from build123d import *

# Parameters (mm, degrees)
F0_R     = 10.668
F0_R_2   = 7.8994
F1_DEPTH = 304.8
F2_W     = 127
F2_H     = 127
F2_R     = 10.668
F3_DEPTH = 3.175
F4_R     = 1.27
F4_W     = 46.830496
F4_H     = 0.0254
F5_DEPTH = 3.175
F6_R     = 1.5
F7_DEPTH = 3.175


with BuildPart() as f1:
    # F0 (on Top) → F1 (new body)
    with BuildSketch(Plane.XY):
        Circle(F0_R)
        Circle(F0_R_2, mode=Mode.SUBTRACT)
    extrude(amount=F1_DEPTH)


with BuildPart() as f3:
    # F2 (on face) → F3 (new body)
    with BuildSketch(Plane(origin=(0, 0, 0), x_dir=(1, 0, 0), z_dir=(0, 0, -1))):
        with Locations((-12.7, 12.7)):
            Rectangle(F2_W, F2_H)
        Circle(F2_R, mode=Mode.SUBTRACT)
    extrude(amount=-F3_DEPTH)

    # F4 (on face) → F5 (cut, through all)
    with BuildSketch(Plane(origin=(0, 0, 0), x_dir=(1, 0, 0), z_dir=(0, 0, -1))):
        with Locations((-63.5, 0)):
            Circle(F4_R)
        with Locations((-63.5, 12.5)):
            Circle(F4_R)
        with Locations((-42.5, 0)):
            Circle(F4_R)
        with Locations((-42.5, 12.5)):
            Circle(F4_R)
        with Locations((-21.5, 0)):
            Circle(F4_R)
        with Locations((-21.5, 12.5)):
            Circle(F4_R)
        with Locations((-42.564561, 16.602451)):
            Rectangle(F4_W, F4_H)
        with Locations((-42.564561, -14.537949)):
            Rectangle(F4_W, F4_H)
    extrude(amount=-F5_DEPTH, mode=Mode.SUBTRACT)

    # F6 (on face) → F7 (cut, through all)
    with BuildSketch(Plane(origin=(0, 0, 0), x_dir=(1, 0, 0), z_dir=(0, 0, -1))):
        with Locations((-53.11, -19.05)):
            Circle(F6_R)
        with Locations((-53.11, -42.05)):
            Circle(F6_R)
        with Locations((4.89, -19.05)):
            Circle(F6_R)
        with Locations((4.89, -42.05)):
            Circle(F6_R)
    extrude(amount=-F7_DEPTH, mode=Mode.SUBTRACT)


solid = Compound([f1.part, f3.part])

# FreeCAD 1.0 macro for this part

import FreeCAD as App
import Part
import Sketcher
Q = App.Units.Quantity


def add_polygon(sketch, points):
    """Adds a closed chain of lines whose ends are joined by coincident constraints."""
    first, n = sketch.GeometryCount, len(points)
    for a, b in zip(points, points[1:] + points[:1]):
        sketch.addGeometry(Part.LineSegment(App.Vector(*a, 0), App.Vector(*b, 0)), False)
    for i in range(n):
        sketch.addConstraint(Sketcher.Constraint("Coincident", first + i, 2, first + (i + 1) % n, 1))

doc = App.newDocument("Part")
params = doc.addObject("Spreadsheet::Sheet", "Params")
for row, (alias, value) in enumerate([
    ("sketch1_diameter", "0.84 in"),
    ("sketch1_diameter2", "0.622 in"),
    ("pad1_length", "12 in"),
    ("sketch2_diameter", "0.84 in"),
    ("sketch2_width", "5 in"),
    ("pad2_length", "0.125 in"),
    ("sketch3_diameter", "0.1 in"),
    ("sketch3_height", "0.001 in"),
], start=1):
    params.set(f"A{row}", alias)
    params.set(f"B{row}", "=" + value)
    params.setAlias(f"B{row}", alias)

body = doc.addObject("PartDesign::Body", "Body")

# Sketch on XY plane
sketch1 = body.newObject("Sketcher::SketchObject", "Sketch")
sketch1.AttachmentSupport = (doc.getObject("XY_Plane"), [""])
sketch1.MapMode = "FlatFace"
sketch1.addGeometry(Part.Circle(App.Vector(0, 0, 0), App.Vector(0, 0, 1), 10.668), False)
sketch1.addGeometry(Part.Circle(App.Vector(0, 0, 0), App.Vector(0, 0, 1), 7.8994), False)
sketch1.addConstraint(Sketcher.Constraint("Coincident", 0, 3, -1, 1))
sketch1.addConstraint(Sketcher.Constraint("Coincident", 1, 3, -1, 1))
sketch1.addConstraint(Sketcher.Constraint("Diameter", 0, Q("0.84 in")))
sketch1.addConstraint(Sketcher.Constraint("Diameter", 1, Q("0.622 in")))
sketch1.setExpression("Constraints[2]", "Params.sketch1_diameter")
sketch1.setExpression("Constraints[3]", "Params.sketch1_diameter2")
pad1 = body.newObject("PartDesign::Pad", "Pad")
pad1.Profile = sketch1
pad1.setExpression("Length", "Params.pad1_length")
body2 = doc.addObject("PartDesign::Body", "Body001")

# Sketch on XY plane
sketch2 = body2.newObject("Sketcher::SketchObject", "Sketch001")
sketch2.AttachmentSupport = (doc.getObject("XY_Plane001"), [""])
sketch2.MapMode = "FlatFace"
add_polygon(sketch2, [(-76.2, -76.2), (-76.2, 50.8), (50.8, 50.8), (50.8, -76.2)])  # lines 0-3
sketch2.addGeometry(Part.Circle(App.Vector(0, 0, 0), App.Vector(0, 0, 1), 10.668), False)  # 4
sketch2.addConstraint(Sketcher.Constraint("Vertical", 0))
sketch2.addConstraint(Sketcher.Constraint("Horizontal", 1))
sketch2.addConstraint(Sketcher.Constraint("Vertical", 2))
sketch2.addConstraint(Sketcher.Constraint("Horizontal", 3))
sketch2.addConstraint(Sketcher.Constraint("Coincident", 4, 3, -1, 1))
sketch2.addConstraint(Sketcher.Constraint("Equal", 3, 0))
sketch2.addConstraint(Sketcher.Constraint("Diameter", 4, Q("0.84 in")))
sketch2.addConstraint(Sketcher.Constraint("DistanceX", 1, 1, 1, 2, Q("5 in")))
sketch2.addConstraint(Sketcher.Constraint("DistanceX", 0, 2, -1, 1, Q("3 in")))
sketch2.addConstraint(Sketcher.Constraint("DistanceY", -1, 1, 0, 2, Q("2 in")))
sketch2.setExpression("Constraints[10]", "Params.sketch2_diameter")
sketch2.setExpression("Constraints[11]", "Params.sketch2_width")
pad2 = body2.newObject("PartDesign::Pad", "Pad001")
pad2.Profile = sketch2
pad2.setExpression("Length", "Params.pad2_length")

# Sketch on XY plane
sketch3 = body2.newObject("Sketcher::SketchObject", "Sketch002")
sketch3.AttachmentSupport = (doc.getObject("XY_Plane001"), [""])
sketch3.MapMode = "FlatFace"
sketch3.addGeometry(Part.Circle(App.Vector(-63.5, 0, 0), App.Vector(0, 0, 1), 1.27), False)  # 0
sketch3.addGeometry(Part.Circle(App.Vector(-63.5, -12.5, 0), App.Vector(0, 0, 1), 1.27), False)  # 1
sketch3.addGeometry(Part.Circle(App.Vector(-42.5, 0, 0), App.Vector(0, 0, 1), 1.27), False)  # 2
sketch3.addGeometry(Part.Circle(App.Vector(-42.5, -12.5, 0), App.Vector(0, 0, 1), 1.27), False)  # 3
sketch3.addGeometry(Part.Circle(App.Vector(-21.5, 0, 0), App.Vector(0, 0, 1), 1.27), False)  # 4
sketch3.addGeometry(Part.Circle(App.Vector(-21.5, -12.5, 0), App.Vector(0, 0, 1), 1.27), False)  # 5
add_polygon(sketch3, [(-65.979809, -16.615151), (-65.979809, -16.589751), (-19.149313, -16.589751), (-19.149313, -16.615151)])  # lines 6-9
add_polygon(sketch3, [(-65.979809, 14.525249), (-65.979809, 14.550649), (-19.149313, 14.550649), (-19.149313, 14.525249)])  # lines 10-13
sketch3.addConstraint(Sketcher.Constraint("Vertical", 6))
sketch3.addConstraint(Sketcher.Constraint("Horizontal", 7))
sketch3.addConstraint(Sketcher.Constraint("Vertical", 8))
sketch3.addConstraint(Sketcher.Constraint("Horizontal", 9))
sketch3.addConstraint(Sketcher.Constraint("Vertical", 10))
sketch3.addConstraint(Sketcher.Constraint("Horizontal", 11))
sketch3.addConstraint(Sketcher.Constraint("Vertical", 12))
sketch3.addConstraint(Sketcher.Constraint("Horizontal", 13))
sketch3.addConstraint(Sketcher.Constraint("Equal", 0, 1))
sketch3.addConstraint(Sketcher.Constraint("Equal", 1, 2))
sketch3.addConstraint(Sketcher.Constraint("Equal", 2, 3))
sketch3.addConstraint(Sketcher.Constraint("Equal", 3, 4))
sketch3.addConstraint(Sketcher.Constraint("Equal", 4, 5))
sketch3.addConstraint(Sketcher.Constraint("PointOnObject", 0, 3, -1))
sketch3.addConstraint(Sketcher.Constraint("PointOnObject", 2, 3, -1))
sketch3.addConstraint(Sketcher.Constraint("PointOnObject", 4, 3, -1))
sketch3.addConstraint(Sketcher.Constraint("Horizontal", 1, 3, 3, 3))
sketch3.addConstraint(Sketcher.Constraint("Horizontal", 3, 3, 5, 3))
sketch3.addConstraint(Sketcher.Constraint("Vertical", 0, 3, 1, 3))
sketch3.addConstraint(Sketcher.Constraint("Vertical", 2, 3, 3, 3))
sketch3.addConstraint(Sketcher.Constraint("Vertical", 4, 3, 5, 3))
sketch3.addConstraint(Sketcher.Constraint("Vertical", 9, 2, 10, 2))
sketch3.addConstraint(Sketcher.Constraint("Vertical", 8, 2, 11, 2))
sketch3.addConstraint(Sketcher.Constraint("Equal", 8, 10))
sketch3.addConstraint(Sketcher.Constraint("Diameter", 0, Q("0.1 in")))
sketch3.addConstraint(Sketcher.Constraint("DistanceX", 0, 3, -1, 1, Q("2.5 in")))
sketch3.addConstraint(Sketcher.Constraint("DistanceY", 6, 1, 6, 2, Q("0.001 in")))
sketch3.addConstraint(Sketcher.Constraint("DistanceY", 6, 2, 10, 2, Q("1.226 in")))
sketch3.addConstraint(Sketcher.Constraint("DistanceY", 1, 3, -1, 1, Q("12.5 mm")))
sketch3.addConstraint(Sketcher.Constraint("DistanceX", 2, 3, -1, 1, Q("42.5 mm")))
sketch3.addConstraint(Sketcher.Constraint("DistanceX", 4, 3, -1, 1, Q("21.5 mm")))
sketch3.addConstraint(Sketcher.Constraint("DistanceX", 7, 1, 7, 2, Q("46.830496 mm")))
sketch3.addConstraint(Sketcher.Constraint("DistanceX", 6, 2, -1, 1, Q("65.979809 mm")))
sketch3.addConstraint(Sketcher.Constraint("DistanceY", 6, 2, -1, 1, Q("16.589751 mm")))
sketch3.setExpression("Constraints[32]", "Params.sketch3_diameter")
sketch3.setExpression("Constraints[34]", "Params.sketch3_height")
pocket1 = body2.newObject("PartDesign::Pocket", "Pocket")
pocket1.Profile = sketch3
pocket1.Type = "ThroughAll"
pocket1.Reversed = True

# Sketch on XY plane
sketch4 = body2.newObject("Sketcher::SketchObject", "Sketch003")
sketch4.AttachmentSupport = (doc.getObject("XY_Plane001"), [""])
sketch4.MapMode = "FlatFace"
sketch4.addGeometry(Part.Circle(App.Vector(-53.11, 19.05, 0), App.Vector(0, 0, 1), 1.5), False)
sketch4.addGeometry(Part.Circle(App.Vector(-53.11, 42.05, 0), App.Vector(0, 0, 1), 1.5), False)
sketch4.addGeometry(Part.Circle(App.Vector(4.89, 19.05, 0), App.Vector(0, 0, 1), 1.5), False)
sketch4.addGeometry(Part.Circle(App.Vector(4.89, 42.05, 0), App.Vector(0, 0, 1), 1.5), False)
sketch4.addConstraint(Sketcher.Constraint("Equal", 0, 1))
sketch4.addConstraint(Sketcher.Constraint("Equal", 1, 2))
sketch4.addConstraint(Sketcher.Constraint("Equal", 2, 3))
sketch4.addConstraint(Sketcher.Constraint("Horizontal", 0, 3, 2, 3))
sketch4.addConstraint(Sketcher.Constraint("Horizontal", 1, 3, 3, 3))
sketch4.addConstraint(Sketcher.Constraint("Vertical", 0, 3, 1, 3))
sketch4.addConstraint(Sketcher.Constraint("Vertical", 2, 3, 3, 3))
sketch4.addConstraint(Sketcher.Constraint("Diameter", 0, Q("3 mm")))
sketch4.addConstraint(Sketcher.Constraint("DistanceY", -1, 1, 0, 3, Q("0.75 in")))
sketch4.addConstraint(Sketcher.Constraint("DistanceX", 0, 3, -1, 1, Q("53.11 mm")))
sketch4.addConstraint(Sketcher.Constraint("DistanceY", -1, 1, 1, 3, Q("42.05 mm")))
sketch4.addConstraint(Sketcher.Constraint("DistanceX", -1, 1, 2, 3, Q("4.89 mm")))
pocket2 = body2.newObject("PartDesign::Pocket", "Pocket001")
pocket2.Profile = sketch4
pocket2.Type = "ThroughAll"
pocket2.Reversed = True

doc.recompute()
